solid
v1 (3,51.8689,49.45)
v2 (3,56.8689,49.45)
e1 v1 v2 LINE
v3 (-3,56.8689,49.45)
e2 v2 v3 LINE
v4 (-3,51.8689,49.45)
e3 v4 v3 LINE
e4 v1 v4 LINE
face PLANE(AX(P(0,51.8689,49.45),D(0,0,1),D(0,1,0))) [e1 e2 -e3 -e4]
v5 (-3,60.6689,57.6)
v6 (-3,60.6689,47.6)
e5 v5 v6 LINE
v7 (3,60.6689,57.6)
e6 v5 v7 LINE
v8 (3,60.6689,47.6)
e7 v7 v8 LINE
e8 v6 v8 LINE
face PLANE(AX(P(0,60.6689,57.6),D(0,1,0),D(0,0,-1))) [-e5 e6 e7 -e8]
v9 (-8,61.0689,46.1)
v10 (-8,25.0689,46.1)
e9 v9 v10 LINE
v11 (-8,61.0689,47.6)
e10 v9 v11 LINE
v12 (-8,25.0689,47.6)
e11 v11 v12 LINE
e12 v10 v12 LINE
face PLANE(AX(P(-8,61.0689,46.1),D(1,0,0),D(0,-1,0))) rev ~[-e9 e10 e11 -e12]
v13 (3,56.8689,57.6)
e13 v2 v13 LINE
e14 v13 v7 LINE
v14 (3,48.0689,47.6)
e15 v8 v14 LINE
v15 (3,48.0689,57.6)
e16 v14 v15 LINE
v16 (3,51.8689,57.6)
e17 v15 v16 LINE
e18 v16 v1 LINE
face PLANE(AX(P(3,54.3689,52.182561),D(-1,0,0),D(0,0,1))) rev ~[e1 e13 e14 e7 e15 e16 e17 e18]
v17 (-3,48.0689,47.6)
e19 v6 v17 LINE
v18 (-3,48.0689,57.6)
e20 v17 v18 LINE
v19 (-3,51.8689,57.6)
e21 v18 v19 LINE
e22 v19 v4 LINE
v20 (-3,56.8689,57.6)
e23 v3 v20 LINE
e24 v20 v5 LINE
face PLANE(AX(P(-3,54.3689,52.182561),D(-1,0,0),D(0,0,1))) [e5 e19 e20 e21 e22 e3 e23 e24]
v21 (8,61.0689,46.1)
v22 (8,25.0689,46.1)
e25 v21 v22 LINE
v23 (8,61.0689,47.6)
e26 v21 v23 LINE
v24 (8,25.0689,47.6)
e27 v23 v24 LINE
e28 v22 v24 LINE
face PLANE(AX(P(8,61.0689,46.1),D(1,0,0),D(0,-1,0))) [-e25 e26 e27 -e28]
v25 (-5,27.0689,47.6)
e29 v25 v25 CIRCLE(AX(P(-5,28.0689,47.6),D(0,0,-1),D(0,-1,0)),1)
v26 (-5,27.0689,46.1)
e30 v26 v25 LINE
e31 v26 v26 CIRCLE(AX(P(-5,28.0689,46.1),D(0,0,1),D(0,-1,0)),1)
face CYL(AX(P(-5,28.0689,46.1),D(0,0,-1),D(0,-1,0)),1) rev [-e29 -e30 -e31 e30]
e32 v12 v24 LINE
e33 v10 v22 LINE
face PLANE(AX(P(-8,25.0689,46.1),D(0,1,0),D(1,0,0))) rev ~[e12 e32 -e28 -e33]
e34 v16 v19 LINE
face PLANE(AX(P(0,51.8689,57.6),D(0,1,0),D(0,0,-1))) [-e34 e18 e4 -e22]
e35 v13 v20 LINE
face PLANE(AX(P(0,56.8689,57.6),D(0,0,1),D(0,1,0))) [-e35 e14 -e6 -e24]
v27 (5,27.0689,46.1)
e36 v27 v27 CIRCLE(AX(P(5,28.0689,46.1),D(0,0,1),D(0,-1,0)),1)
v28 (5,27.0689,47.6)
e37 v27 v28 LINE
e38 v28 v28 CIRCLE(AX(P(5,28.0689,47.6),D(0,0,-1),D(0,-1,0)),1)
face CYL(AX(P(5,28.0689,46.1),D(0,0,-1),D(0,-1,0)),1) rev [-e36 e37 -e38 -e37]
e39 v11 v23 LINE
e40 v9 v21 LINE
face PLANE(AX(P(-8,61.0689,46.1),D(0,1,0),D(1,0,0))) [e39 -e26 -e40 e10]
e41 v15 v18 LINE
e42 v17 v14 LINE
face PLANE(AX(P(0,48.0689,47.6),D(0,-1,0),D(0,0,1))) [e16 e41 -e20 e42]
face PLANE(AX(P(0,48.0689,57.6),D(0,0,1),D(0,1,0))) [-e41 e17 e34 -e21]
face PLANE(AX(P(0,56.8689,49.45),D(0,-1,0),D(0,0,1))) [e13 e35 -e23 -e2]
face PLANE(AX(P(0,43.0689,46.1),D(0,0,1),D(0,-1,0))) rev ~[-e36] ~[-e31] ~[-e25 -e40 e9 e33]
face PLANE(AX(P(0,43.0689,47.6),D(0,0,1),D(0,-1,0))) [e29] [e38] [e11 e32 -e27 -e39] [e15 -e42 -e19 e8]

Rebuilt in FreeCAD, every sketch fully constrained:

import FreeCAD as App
import Part
import Sketcher
from FreeCAD import Vector
Q = App.Units.Quantity

doc = App.newDocument("Part")
params = doc.addObject("Spreadsheet::Sheet", "Params")
for row, (alias, value) in enumerate([
    ("sketch1_diameter", "2 mm"),
    ("pad1_length", "5 mm"),
    ("sketch2_diameter", "2 mm"),
    ("pad2_length", "5 mm"),
    ("sketch3_width", "36 mm"),
    ("sketch3_height", "16 mm"),
    ("pad3_length", "1.5 mm"),
    ("sketch4_width", "5 mm"),
    ("sketch4_height", "10 mm"),
    ("sketch4_width2", "3.8 mm"),
    ("sketch4_height2", "8.15 mm"),
    ("pad4_length", "6 mm"),
], start=1):
    params.set(f"A{row}", alias)
    params.set(f"B{row}", "=" + value)
    params.setAlias(f"B{row}", alias)

body = doc.addObject("PartDesign::Body", "Body")

sketch1 = body.newObject("Sketcher::SketchObject", "Sketch")
sketch1.AttachmentSupport = (doc.getObject("XY_Plane"), [""])
sketch1.MapMode = "FlatFace"
sketch1.addGeometry(Part.Circle(Vector(33, 3, 0), Vector(0, 0, 1), 1), False)
sketch1.addConstraint([
    Sketcher.Constraint("Diameter", 0, Q("2 mm")),
    Sketcher.Constraint("DistanceX", -1, 1, 0, 3, Q("33 mm")),
    Sketcher.Constraint("DistanceY", -1, 1, 0, 3, Q("3 mm")),
])
sketch1.setExpression("Constraints[0]", "Params.sketch1_diameter")
pad1 = body.newObject("PartDesign::Pad", "Pad")
pad1.Profile = sketch1
pad1.setExpression("Length", "Params.pad1_length")
body2 = doc.addObject("PartDesign::Body", "Body001")
body2.AllowCompound = True

sketch2 = body2.newObject("Sketcher::SketchObject", "Sketch001")
sketch2.AttachmentSupport = (doc.getObject("XY_Plane001"), [""])
sketch2.MapMode = "FlatFace"
sketch2.addGeometry(Part.Circle(Vector(33, 13, 0), Vector(0, 0, 1), 1), False)
sketch2.addConstraint([
    Sketcher.Constraint("Diameter", 0, Q("2 mm")),
    Sketcher.Constraint("DistanceX", -1, 1, 0, 3, Q("33 mm")),
    Sketcher.Constraint("DistanceY", -1, 1, 0, 3, Q("13 mm")),
])
sketch2.setExpression("Constraints[0]", "Params.sketch2_diameter")
pad2 = body2.newObject("PartDesign::Pad", "Pad001")
pad2.Profile = sketch2
pad2.setExpression("Length", "Params.pad2_length")
doc.recompute()

boolean = body2.newObject("PartDesign::Boolean", "Boolean")
boolean.Type = "Fuse"
boolean.addObjects([body])
body3 = doc.addObject("PartDesign::Body", "Body002")

sketch3 = body3.newObject("Sketcher::SketchObject", "Sketch002")
sketch3.AttachmentSupport = (doc.getObject("XY_Plane002"), [""])
sketch3.MapMode = "FlatFace"
sketch3.addGeometry([
    Part.LineSegment(Vector(0, 16, 0), Vector(0, 0, 0)),
    Part.LineSegment(Vector(0, 0, 0), Vector(36, 0, 0)),
    Part.LineSegment(Vector(36, 0, 0), Vector(36, 16, 0)),
    Part.LineSegment(Vector(36, 16, 0), Vector(0, 16, 0)),
], False)
sketch3.addConstraint([
    Sketcher.Constraint("Coincident", 0, 2, 1, 1),
    Sketcher.Constraint("Coincident", 1, 2, 2, 1),
    Sketcher.Constraint("Coincident", 2, 2, 3, 1),
    Sketcher.Constraint("Coincident", 3, 2, 0, 1),
    Sketcher.Constraint("Vertical", 0),
    Sketcher.Constraint("Horizontal", 1),
    Sketcher.Constraint("Vertical", 2),
    Sketcher.Constraint("Horizontal", 3),
    Sketcher.Constraint("Coincident", 0, 2, -1, 1),
    Sketcher.Constraint("DistanceX", 1, 1, 1, 2, Q("36 mm")),
    Sketcher.Constraint("DistanceY", 0, 2, 0, 1, Q("16 mm")),
])
sketch3.setExpression("Constraints[9]", "Params.sketch3_width")
sketch3.setExpression("Constraints[10]", "Params.sketch3_height")
pad3 = body3.newObject("PartDesign::Pad", "Pad002")
pad3.Profile = sketch3
pad3.setExpression("Length", "Params.pad3_length")
doc.recompute()

boolean2 = body3.newObject("PartDesign::Boolean", "Boolean001")
boolean2.Type = "Cut"
boolean2.addObjects([body2])
body4 = doc.addObject("PartDesign::Body", "Body003")

sketch4 = body4.newObject("Sketcher::SketchObject", "Sketch003")
sketch4.AttachmentSupport = (doc.getObject("XZ_Plane003"), [""])
sketch4.MapMode = "FlatFace"
sketch4.AttachmentOffset = App.Placement(Vector(0, 0, -8), App.Rotation())
sketch4.addGeometry([
    Part.LineSegment(Vector(13, 1.5, 0), Vector(13, 11.5, 0)),
    Part.LineSegment(Vector(13, 11.5, 0), Vector(9.2, 11.5, 0)),
    Part.LineSegment(Vector(9.2, 11.5, 0), Vector(9.2, 3.4, 0)),
    Part.LineSegment(Vector(9.2, 3.4, 0), Vector(4.2, 3.4, 0)),
    Part.LineSegment(Vector(4.2, 3.4, 0), Vector(4.2, 11.5, 0)),
    Part.LineSegment(Vector(4.2, 11.5, 0), Vector(0.4, 11.5, 0)),
    Part.LineSegment(Vector(0.4, 11.5, 0), Vector(0.4, 1.5, 0)),
    Part.LineSegment(Vector(0.4, 1.5, 0), Vector(13, 1.5, 0)),
], False)
sketch4.addConstraint([
    Sketcher.Constraint("Coincident", 0, 2, 1, 1),
    Sketcher.Constraint("Coincident", 1, 2, 2, 1),
    Sketcher.Constraint("Coincident", 2, 2, 3, 1),
    Sketcher.Constraint("Coincident", 3, 2, 4, 1),
    Sketcher.Constraint("Coincident", 4, 2, 5, 1),
    Sketcher.Constraint("Coincident", 5, 2, 6, 1),
    Sketcher.Constraint("Coincident", 6, 2, 7, 1),
    Sketcher.Constraint("Coincident", 7, 2, 0, 1),
    Sketcher.Constraint("Vertical", 0),
    Sketcher.Constraint("Horizontal", 1),
    Sketcher.Constraint("Vertical", 2),
    Sketcher.Constraint("Horizontal", 3),
    Sketcher.Constraint("Vertical", 4),
    Sketcher.Constraint("Horizontal", 5),
    Sketcher.Constraint("Vertical", 6),
    Sketcher.Constraint("Horizontal", 7),
    Sketcher.Constraint("Horizontal", 1, 2, 4, 2),
    Sketcher.Constraint("Equal", 1, 5),
    Sketcher.Constraint("DistanceX", 3, 2, 3, 1, Q("5 mm")),
    Sketcher.Constraint("DistanceY", 0, 1, 0, 2, Q("10 mm")),
    Sketcher.Constraint("DistanceX", 1, 2, 1, 1, Q("3.8 mm")),
    Sketcher.Constraint("DistanceX", -1, 1, 0, 2, Q("13 mm")),
    Sketcher.Constraint("DistanceY", 2, 2, 2, 1, Q("8.15 mm")),
    Sketcher.Constraint("DistanceY", -1, 1, 0, 2, Q("11.5 mm")),
])
sketch4.setExpression("Constraints[18]", "Params.sketch4_width")
sketch4.setExpression("Constraints[19]", "Params.sketch4_height")
sketch4.setExpression("Constraints[20]", "Params.sketch4_width2")
sketch4.setExpression("Constraints[22]", "Params.sketch4_height2")
pad4 = body4.newObject("PartDesign::Pad", "Pad003")
pad4.Profile = sketch4
pad4.setExpression("Length", "Params.pad4_length")
pad4.Midplane = True
doc.recompute()

boolean3 = body4.newObject("PartDesign::Boolean", "Boolean002")
boolean3.Type = "Fuse"
boolean3.addObjects([body3])
body5 = doc.addObject("PartDesign::Body", "Body004")
doc.recompute()

body4.Placement = App.Placement(Vector(-8, 61.0689, 46.1), App.Rotation(Vector(0, 0, 1), 270))
boolean4 = body5.newObject("PartDesign::Boolean", "Boolean003")
boolean4.Type = "Fuse"
boolean4.addObjects([body4])

doc.recompute()
